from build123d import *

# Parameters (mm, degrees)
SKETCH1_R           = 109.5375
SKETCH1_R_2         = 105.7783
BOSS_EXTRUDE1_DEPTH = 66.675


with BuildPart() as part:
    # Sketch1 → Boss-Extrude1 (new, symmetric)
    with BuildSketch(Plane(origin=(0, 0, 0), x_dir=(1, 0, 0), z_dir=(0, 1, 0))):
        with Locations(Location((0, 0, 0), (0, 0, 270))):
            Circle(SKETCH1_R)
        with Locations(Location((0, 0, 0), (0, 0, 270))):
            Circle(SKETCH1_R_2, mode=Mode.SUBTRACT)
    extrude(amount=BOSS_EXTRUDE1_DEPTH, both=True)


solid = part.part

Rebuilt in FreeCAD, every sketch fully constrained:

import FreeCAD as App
import Part
import Sketcher
Q = App.Units.Quantity

doc = App.newDocument("Part")
body = doc.addObject("PartDesign::Body", "Body")

# Sketch on XZ plane
sketch1 = doc.addObject("Sketcher::SketchObject", "Sketch")
body.addObject(sketch1)
sketch1.AttachmentSupport = (doc.XZ_Plane, [""])
sketch1.MapMode = "FlatFace"
sketch1.addGeometry([
    Part.Circle(App.Vector(0, 0, 0), App.Vector(0, 0, 1), 110),
    Part.Circle(App.Vector(0, 0, 0), App.Vector(0, 0, 1), 106),
], False)
sketch1.addConstraint([
    Sketcher.Constraint("Coincident", 0, 3, -1, 1),
    Sketcher.Constraint("Coincident", 1, 3, -1, 1),
    Sketcher.Constraint("Diameter", 0, Q("8.625 in")),
    Sketcher.Constraint("Diameter", 1, Q("8.329 in")),
])
pad1 = doc.addObject("PartDesign::Pad", "Pad")
body.addObject(pad1)
pad1.Profile = sketch1
pad1.Length = Q("5.25 in")
pad1.Midplane = True

doc.recompute()
